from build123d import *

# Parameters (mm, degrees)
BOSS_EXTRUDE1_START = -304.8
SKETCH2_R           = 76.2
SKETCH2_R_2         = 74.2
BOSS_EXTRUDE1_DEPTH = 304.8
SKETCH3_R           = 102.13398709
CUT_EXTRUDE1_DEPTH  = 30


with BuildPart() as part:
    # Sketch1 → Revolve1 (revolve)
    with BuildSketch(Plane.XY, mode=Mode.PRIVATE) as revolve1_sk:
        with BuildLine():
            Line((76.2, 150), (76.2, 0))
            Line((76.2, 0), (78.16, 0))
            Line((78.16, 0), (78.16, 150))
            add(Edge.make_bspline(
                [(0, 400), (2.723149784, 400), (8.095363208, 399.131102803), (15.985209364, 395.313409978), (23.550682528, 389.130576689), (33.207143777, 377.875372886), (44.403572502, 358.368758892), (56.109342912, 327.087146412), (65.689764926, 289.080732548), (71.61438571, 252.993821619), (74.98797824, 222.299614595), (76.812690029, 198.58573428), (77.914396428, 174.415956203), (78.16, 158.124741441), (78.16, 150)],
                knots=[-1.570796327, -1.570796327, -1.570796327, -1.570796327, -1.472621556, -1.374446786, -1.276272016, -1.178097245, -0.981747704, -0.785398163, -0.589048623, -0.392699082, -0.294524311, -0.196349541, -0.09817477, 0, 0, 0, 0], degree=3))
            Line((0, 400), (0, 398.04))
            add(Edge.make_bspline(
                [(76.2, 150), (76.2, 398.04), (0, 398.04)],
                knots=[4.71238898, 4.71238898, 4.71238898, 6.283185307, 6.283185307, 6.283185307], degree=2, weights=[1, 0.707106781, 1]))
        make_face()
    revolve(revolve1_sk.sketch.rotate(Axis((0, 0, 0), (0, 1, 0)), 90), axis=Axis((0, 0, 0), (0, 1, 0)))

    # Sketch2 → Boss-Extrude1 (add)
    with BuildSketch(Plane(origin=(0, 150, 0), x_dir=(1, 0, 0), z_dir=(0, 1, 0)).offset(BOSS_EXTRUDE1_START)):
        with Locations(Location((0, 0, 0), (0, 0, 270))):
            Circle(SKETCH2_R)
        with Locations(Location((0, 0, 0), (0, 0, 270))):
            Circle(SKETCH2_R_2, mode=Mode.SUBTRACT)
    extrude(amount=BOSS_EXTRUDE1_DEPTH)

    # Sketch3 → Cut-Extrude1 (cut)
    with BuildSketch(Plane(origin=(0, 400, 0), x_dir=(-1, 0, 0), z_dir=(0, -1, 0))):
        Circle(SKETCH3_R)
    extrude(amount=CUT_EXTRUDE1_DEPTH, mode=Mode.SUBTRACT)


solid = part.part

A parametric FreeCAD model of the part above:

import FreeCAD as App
import Part
import Sketcher

doc = App.newDocument("Part")
params = doc.addObject("Spreadsheet::Sheet", "Params")
for row, (alias, value) in enumerate([
    ("revolution_angle", "360 deg"),
    ("sketch2_diameter", "152.4 mm"),
    ("sketch2_diameter2", "148.4 mm"),
    ("pad1_length", "304.8 mm"),
    ("pocket1_length", "30 mm"),
], start=1):
    params.set(f"A{row}", alias)
    params.set(f"B{row}", "=" + value)
    params.setAlias(f"B{row}", alias)

body = doc.addObject("PartDesign::Body", "Body")

sketch1 = body.newObject("Sketcher::SketchObject", "Sketch")
sketch1.AttachmentSupport = (doc.getObject("XY_Plane"), [""])
sketch1.MapMode = "FlatFace"
sketch1.addGeometry(Part.LineSegment(App.Vector(76.2, 150, 0), App.Vector(76.2, 0, 0)), False)
sketch1.addGeometry(Part.LineSegment(App.Vector(76.2, 0, 0), App.Vector(78.16, 0, 0)), False)
sketch1.addGeometry(Part.LineSegment(App.Vector(78.16, 0, 0), App.Vector(78.16, 150, 0)), False)
sketch1.addGeometry(Part.BSplineCurve([App.Vector(0, 400, 0), App.Vector(2.72315, 400, 0), App.Vector(8.095363, 399.131103, 0), App.Vector(15.985209, 395.31341, 0), App.Vector(23.550683, 389.130577, 0), App.Vector(33.207144, 377.875373, 0), App.Vector(44.403573, 358.368759, 0), App.Vector(56.109343, 327.087146, 0), App.Vector(65.689765, 289.080733, 0), App.Vector(71.614386, 252.993822, 0), App.Vector(74.987978, 222.299615, 0), App.Vector(76.81269, 198.585734, 0), App.Vector(77.914396, 174.415956, 0), App.Vector(78.16, 158.124741, 0), App.Vector(78.16, 150, 0)], [4, 1, 1, 1, 1, 1, 1, 1, 1, 1, 1, 1, 4], [-1.570796327, -1.472621556, -1.374446786, -1.276272016, -1.178097245, -0.981747704, -0.785398163, -0.589048623, -0.392699082, -0.294524311, -0.196349541, -0.09817477, 0], False, 3, [1, 1, 1, 1, 1, 1, 1, 1, 1, 1, 1, 1, 1, 1, 1], False), False)
sketch1.addGeometry(Part.LineSegment(App.Vector(0, 400, 0), App.Vector(0, 398.04, 0)), False)
sketch1.addGeometry(Part.BSplineCurve([App.Vector(76.2, 150, 0), App.Vector(76.2, 398.04, 0), App.Vector(0, 398.04, 0)], [3, 3], [4.71238898, 6.283185307], False, 2, [1, 0.707106781, 1], False), False)
sketch1.addConstraint(Sketcher.Constraint("Block", 3))
sketch1.addConstraint(Sketcher.Constraint("Block", 5))
sketch1.addConstraint(Sketcher.Constraint("Coincident", 0, 2, 1, 1))
sketch1.addConstraint(Sketcher.Constraint("Coincident", 1, 2, 2, 1))
sketch1.addConstraint(Sketcher.Constraint("Coincident", 2, 2, 3, 2))
sketch1.addConstraint(Sketcher.Constraint("Coincident", 3, 1, 4, 1))
sketch1.addConstraint(Sketcher.Constraint("Coincident", 4, 2, 5, 2))
sketch1.addConstraint(Sketcher.Constraint("Coincident", 5, 1, 0, 1))
sketch1.addConstraint(Sketcher.Constraint("Vertical", 0))
sketch1.addConstraint(Sketcher.Constraint("Horizontal", 1))
sketch1.addConstraint(Sketcher.Constraint("Vertical", 2))
sketch1.addConstraint(Sketcher.Constraint("PointOnObject", 0, 2, -1))
revolution = body.newObject("PartDesign::Revolution", "Revolution")
revolution.Profile = sketch1
revolution.ReferenceAxis = (sketch1, ["V_Axis"])
revolution.setExpression("Angle", "Params.revolution_angle")

sketch2 = body.newObject("Sketcher::SketchObject", "Sketch001")
sketch2.AttachmentSupport = (doc.getObject("XZ_Plane"), [""])
sketch2.MapMode = "FlatFace"
sketch2.AttachmentOffset = App.Placement(App.Vector(0, 0, 154.8), App.Rotation())
sketch2.addGeometry(Part.Circle(App.Vector(0, 0, 0), App.Vector(0, 0, 1), 76), False)
sketch2.addGeometry(Part.Circle(App.Vector(0, 0, 0), App.Vector(0, 0, 1), 74), False)
sketch2.addConstraint(Sketcher.Constraint("Coincident", 0, 3, -1, 1))
sketch2.addConstraint(Sketcher.Constraint("Coincident", 1, 3, -1, 1))
sketch2.addConstraint(Sketcher.Constraint("Diameter", 0, 152.4))
sketch2.addConstraint(Sketcher.Constraint("Diameter", 1, 148.4))
sketch2.setExpression("Constraints[2]", "Params.sketch2_diameter")
sketch2.setExpression("Constraints[3]", "Params.sketch2_diameter2")
pad1 = body.newObject("PartDesign::Pad", "Pad")
pad1.Profile = sketch2
pad1.setExpression("Length", "Params.pad1_length")
pad1.Reversed = True

sketch3 = body.newObject("Sketcher::SketchObject", "Sketch002")
sketch3.AttachmentSupport = (doc.getObject("XZ_Plane"), [""])
sketch3.MapMode = "FlatFace"
sketch3.AttachmentOffset = App.Placement(App.Vector(0, 0, -400), App.Rotation())
sketch3.addGeometry(Part.Circle(App.Vector(0, 0, 0), App.Vector(0, 0, 1), 102), False)
sketch3.addConstraint(Sketcher.Constraint("Coincident", 0, 3, -1, 1))
sketch3.addConstraint(Sketcher.Constraint("Diameter", 0, 204.267974))
pocket1 = body.newObject("PartDesign::Pocket", "Pocket")
pocket1.Profile = sketch3
pocket1.setExpression("Length", "Params.pocket1_length")
pocket1.Reversed = True

doc.recompute()
